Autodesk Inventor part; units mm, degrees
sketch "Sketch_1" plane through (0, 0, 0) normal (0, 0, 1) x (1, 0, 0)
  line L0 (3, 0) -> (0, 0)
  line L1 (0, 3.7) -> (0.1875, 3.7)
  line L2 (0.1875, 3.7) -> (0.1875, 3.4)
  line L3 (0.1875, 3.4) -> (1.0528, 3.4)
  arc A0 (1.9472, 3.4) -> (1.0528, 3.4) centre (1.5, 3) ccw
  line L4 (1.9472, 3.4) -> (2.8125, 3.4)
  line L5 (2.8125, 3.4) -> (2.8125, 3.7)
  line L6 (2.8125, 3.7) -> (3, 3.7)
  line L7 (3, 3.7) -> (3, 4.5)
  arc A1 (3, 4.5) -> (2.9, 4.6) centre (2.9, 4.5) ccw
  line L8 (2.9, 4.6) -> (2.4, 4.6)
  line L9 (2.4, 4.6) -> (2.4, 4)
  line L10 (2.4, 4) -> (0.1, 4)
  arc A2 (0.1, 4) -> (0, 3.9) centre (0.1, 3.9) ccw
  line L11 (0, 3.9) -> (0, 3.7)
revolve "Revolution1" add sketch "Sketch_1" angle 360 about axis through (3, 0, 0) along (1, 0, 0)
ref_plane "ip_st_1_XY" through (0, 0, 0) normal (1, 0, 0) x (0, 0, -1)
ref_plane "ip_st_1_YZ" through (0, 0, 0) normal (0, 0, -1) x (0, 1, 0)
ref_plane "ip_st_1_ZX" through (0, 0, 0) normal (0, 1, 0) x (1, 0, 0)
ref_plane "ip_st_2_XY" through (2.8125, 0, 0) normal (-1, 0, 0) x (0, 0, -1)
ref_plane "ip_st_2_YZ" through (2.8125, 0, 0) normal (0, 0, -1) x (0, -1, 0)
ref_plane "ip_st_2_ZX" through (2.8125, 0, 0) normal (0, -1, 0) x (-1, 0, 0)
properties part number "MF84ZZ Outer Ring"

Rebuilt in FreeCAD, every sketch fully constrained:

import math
import FreeCAD as App
import Part
import Sketcher
from FreeCAD import Vector
Q = App.Units.Quantity

doc = App.newDocument("Part")
body = doc.addObject("PartDesign::Body", "Body")

# Sketch on XY plane
sketch1 = body.newObject("Sketcher::SketchObject", "Sketch")
sketch1.AttachmentSupport = (doc.getObject("XY_Plane"), [""])
sketch1.MapMode = "FlatFace"
sketch1.addGeometry(Part.LineSegment(Vector(0, 3.9, 0), Vector(0, 3.7, 0)), False)
sketch1.addGeometry(Part.LineSegment(Vector(0, 3.7, 0), Vector(0.19, 3.7, 0)), False)
sketch1.addGeometry(Part.LineSegment(Vector(0.19, 3.7, 0), Vector(0.19, 3.4, 0)), False)
sketch1.addGeometry(Part.LineSegment(Vector(0.19, 3.4, 0), Vector(1.05, 3.4, 0)), False)
sketch1.addGeometry(Part.ArcOfCircle(Part.Circle(Vector(1.5, 3, 0), Vector(0, 0, 1), 0.6), math.radians(42), math.radians(138)), False)
sketch1.addGeometry(Part.LineSegment(Vector(1.95, 3.4, 0), Vector(2.81, 3.4, 0)), False)
sketch1.addGeometry(Part.LineSegment(Vector(2.81, 3.4, 0), Vector(2.81, 3.7, 0)), False)
sketch1.addGeometry(Part.LineSegment(Vector(2.81, 3.7, 0), Vector(3, 3.7, 0)), False)
sketch1.addGeometry(Part.LineSegment(Vector(3, 3.7, 0), Vector(3, 4.5, 0)), False)
sketch1.addGeometry(Part.ArcOfCircle(Part.Circle(Vector(2.9, 4.5, 0), Vector(0, 0, 1), 0.1), math.radians(0), math.radians(90)), False)
sketch1.addGeometry(Part.LineSegment(Vector(2.9, 4.6, 0), Vector(2.4, 4.6, 0)), False)
sketch1.addGeometry(Part.LineSegment(Vector(2.4, 4.6, 0), Vector(2.4, 4, 0)), False)
sketch1.addGeometry(Part.LineSegment(Vector(2.4, 4, 0), Vector(0.1, 4, 0)), False)
sketch1.addGeometry(Part.ArcOfCircle(Part.Circle(Vector(0.1, 3.9, 0), Vector(0, 0, 1), 0.1), math.radians(90), math.radians(180)), False)
sketch1.addConstraint(Sketcher.Constraint("Coincident", 0, 2, 1, 1))
sketch1.addConstraint(Sketcher.Constraint("Coincident", 1, 2, 2, 1))
sketch1.addConstraint(Sketcher.Constraint("Coincident", 2, 2, 3, 1))
sketch1.addConstraint(Sketcher.Constraint("Coincident", 3, 2, 4, 2))
sketch1.addConstraint(Sketcher.Constraint("Coincident", 4, 1, 5, 1))
sketch1.addConstraint(Sketcher.Constraint("Coincident", 5, 2, 6, 1))
sketch1.addConstraint(Sketcher.Constraint("Coincident", 6, 2, 7, 1))
sketch1.addConstraint(Sketcher.Constraint("Coincident", 7, 2, 8, 1))
sketch1.addConstraint(Sketcher.Constraint("Tangent", 8, 2, 9, 1))
sketch1.addConstraint(Sketcher.Constraint("Tangent", 9, 2, 10, 1))
sketch1.addConstraint(Sketcher.Constraint("Coincident", 10, 2, 11, 1))
sketch1.addConstraint(Sketcher.Constraint("Coincident", 11, 2, 12, 1))
sketch1.addConstraint(Sketcher.Constraint("Tangent", 12, 2, 13, 1))
sketch1.addConstraint(Sketcher.Constraint("Tangent", 13, 2, 0, 1))
sketch1.addConstraint(Sketcher.Constraint("Vertical", 0))
sketch1.addConstraint(Sketcher.Constraint("Horizontal", 1))
sketch1.addConstraint(Sketcher.Constraint("Vertical", 2))
sketch1.addConstraint(Sketcher.Constraint("Horizontal", 3))
sketch1.addConstraint(Sketcher.Constraint("Horizontal", 5))
sketch1.addConstraint(Sketcher.Constraint("Vertical", 6))
sketch1.addConstraint(Sketcher.Constraint("Horizontal", 7))
sketch1.addConstraint(Sketcher.Constraint("Vertical", 8))
sketch1.addConstraint(Sketcher.Constraint("Horizontal", 10))
sketch1.addConstraint(Sketcher.Constraint("Vertical", 11))
sketch1.addConstraint(Sketcher.Constraint("Horizontal", 12))
sketch1.addConstraint(Sketcher.Constraint("Equal", 9, 13))
sketch1.addConstraint(Sketcher.Constraint("PointOnObject", 0, 2, -2))
sketch1.addConstraint(Sketcher.Constraint("Horizontal", 3, 2, 4, 1))
sketch1.addConstraint(Sketcher.Constraint("Horizontal", 1, 2, 6, 2))
sketch1.addConstraint(Sketcher.Constraint("Equal", 3, 5))
sketch1.addConstraint(Sketcher.Constraint("Equal", 1, 7))
sketch1.addConstraint(Sketcher.Constraint("Radius", 4, Q("0.6 mm")))
sketch1.addConstraint(Sketcher.Constraint("Radius", 9, Q("0.1 mm")))
sketch1.addConstraint(Sketcher.Constraint("DistanceX", 10, 2, 10, 1, Q("0.5 mm")))
sketch1.addConstraint(Sketcher.Constraint("DistanceX", 12, 2, 12, 1, Q("2.3 mm")))
sketch1.addConstraint(Sketcher.Constraint("DistanceY", 0, 2, 0, 1, Q("0.2 mm")))
sketch1.addConstraint(Sketcher.Constraint("DistanceY", 2, 2, 2, 1, Q("0.3 mm")))
sketch1.addConstraint(Sketcher.Constraint("DistanceY", 8, 1, 8, 2, Q("0.8 mm")))
sketch1.addConstraint(Sketcher.Constraint("DistanceY", -1, 1, 4, 3, Q("3 mm")))
sketch1.addConstraint(Sketcher.Constraint("DistanceY", -1, 1, 11, 2, Q("4 mm")))
sketch1.addConstraint(Sketcher.Constraint("DistanceX", 1, 1, 1, 2, Q("0.1875 mm")))
revolution = body.newObject("PartDesign::Revolution", "Revolution")
revolution.Profile = sketch1
revolution.ReferenceAxis = (sketch1, ["H_Axis"])
revolution.Angle = 360

doc.recompute()
